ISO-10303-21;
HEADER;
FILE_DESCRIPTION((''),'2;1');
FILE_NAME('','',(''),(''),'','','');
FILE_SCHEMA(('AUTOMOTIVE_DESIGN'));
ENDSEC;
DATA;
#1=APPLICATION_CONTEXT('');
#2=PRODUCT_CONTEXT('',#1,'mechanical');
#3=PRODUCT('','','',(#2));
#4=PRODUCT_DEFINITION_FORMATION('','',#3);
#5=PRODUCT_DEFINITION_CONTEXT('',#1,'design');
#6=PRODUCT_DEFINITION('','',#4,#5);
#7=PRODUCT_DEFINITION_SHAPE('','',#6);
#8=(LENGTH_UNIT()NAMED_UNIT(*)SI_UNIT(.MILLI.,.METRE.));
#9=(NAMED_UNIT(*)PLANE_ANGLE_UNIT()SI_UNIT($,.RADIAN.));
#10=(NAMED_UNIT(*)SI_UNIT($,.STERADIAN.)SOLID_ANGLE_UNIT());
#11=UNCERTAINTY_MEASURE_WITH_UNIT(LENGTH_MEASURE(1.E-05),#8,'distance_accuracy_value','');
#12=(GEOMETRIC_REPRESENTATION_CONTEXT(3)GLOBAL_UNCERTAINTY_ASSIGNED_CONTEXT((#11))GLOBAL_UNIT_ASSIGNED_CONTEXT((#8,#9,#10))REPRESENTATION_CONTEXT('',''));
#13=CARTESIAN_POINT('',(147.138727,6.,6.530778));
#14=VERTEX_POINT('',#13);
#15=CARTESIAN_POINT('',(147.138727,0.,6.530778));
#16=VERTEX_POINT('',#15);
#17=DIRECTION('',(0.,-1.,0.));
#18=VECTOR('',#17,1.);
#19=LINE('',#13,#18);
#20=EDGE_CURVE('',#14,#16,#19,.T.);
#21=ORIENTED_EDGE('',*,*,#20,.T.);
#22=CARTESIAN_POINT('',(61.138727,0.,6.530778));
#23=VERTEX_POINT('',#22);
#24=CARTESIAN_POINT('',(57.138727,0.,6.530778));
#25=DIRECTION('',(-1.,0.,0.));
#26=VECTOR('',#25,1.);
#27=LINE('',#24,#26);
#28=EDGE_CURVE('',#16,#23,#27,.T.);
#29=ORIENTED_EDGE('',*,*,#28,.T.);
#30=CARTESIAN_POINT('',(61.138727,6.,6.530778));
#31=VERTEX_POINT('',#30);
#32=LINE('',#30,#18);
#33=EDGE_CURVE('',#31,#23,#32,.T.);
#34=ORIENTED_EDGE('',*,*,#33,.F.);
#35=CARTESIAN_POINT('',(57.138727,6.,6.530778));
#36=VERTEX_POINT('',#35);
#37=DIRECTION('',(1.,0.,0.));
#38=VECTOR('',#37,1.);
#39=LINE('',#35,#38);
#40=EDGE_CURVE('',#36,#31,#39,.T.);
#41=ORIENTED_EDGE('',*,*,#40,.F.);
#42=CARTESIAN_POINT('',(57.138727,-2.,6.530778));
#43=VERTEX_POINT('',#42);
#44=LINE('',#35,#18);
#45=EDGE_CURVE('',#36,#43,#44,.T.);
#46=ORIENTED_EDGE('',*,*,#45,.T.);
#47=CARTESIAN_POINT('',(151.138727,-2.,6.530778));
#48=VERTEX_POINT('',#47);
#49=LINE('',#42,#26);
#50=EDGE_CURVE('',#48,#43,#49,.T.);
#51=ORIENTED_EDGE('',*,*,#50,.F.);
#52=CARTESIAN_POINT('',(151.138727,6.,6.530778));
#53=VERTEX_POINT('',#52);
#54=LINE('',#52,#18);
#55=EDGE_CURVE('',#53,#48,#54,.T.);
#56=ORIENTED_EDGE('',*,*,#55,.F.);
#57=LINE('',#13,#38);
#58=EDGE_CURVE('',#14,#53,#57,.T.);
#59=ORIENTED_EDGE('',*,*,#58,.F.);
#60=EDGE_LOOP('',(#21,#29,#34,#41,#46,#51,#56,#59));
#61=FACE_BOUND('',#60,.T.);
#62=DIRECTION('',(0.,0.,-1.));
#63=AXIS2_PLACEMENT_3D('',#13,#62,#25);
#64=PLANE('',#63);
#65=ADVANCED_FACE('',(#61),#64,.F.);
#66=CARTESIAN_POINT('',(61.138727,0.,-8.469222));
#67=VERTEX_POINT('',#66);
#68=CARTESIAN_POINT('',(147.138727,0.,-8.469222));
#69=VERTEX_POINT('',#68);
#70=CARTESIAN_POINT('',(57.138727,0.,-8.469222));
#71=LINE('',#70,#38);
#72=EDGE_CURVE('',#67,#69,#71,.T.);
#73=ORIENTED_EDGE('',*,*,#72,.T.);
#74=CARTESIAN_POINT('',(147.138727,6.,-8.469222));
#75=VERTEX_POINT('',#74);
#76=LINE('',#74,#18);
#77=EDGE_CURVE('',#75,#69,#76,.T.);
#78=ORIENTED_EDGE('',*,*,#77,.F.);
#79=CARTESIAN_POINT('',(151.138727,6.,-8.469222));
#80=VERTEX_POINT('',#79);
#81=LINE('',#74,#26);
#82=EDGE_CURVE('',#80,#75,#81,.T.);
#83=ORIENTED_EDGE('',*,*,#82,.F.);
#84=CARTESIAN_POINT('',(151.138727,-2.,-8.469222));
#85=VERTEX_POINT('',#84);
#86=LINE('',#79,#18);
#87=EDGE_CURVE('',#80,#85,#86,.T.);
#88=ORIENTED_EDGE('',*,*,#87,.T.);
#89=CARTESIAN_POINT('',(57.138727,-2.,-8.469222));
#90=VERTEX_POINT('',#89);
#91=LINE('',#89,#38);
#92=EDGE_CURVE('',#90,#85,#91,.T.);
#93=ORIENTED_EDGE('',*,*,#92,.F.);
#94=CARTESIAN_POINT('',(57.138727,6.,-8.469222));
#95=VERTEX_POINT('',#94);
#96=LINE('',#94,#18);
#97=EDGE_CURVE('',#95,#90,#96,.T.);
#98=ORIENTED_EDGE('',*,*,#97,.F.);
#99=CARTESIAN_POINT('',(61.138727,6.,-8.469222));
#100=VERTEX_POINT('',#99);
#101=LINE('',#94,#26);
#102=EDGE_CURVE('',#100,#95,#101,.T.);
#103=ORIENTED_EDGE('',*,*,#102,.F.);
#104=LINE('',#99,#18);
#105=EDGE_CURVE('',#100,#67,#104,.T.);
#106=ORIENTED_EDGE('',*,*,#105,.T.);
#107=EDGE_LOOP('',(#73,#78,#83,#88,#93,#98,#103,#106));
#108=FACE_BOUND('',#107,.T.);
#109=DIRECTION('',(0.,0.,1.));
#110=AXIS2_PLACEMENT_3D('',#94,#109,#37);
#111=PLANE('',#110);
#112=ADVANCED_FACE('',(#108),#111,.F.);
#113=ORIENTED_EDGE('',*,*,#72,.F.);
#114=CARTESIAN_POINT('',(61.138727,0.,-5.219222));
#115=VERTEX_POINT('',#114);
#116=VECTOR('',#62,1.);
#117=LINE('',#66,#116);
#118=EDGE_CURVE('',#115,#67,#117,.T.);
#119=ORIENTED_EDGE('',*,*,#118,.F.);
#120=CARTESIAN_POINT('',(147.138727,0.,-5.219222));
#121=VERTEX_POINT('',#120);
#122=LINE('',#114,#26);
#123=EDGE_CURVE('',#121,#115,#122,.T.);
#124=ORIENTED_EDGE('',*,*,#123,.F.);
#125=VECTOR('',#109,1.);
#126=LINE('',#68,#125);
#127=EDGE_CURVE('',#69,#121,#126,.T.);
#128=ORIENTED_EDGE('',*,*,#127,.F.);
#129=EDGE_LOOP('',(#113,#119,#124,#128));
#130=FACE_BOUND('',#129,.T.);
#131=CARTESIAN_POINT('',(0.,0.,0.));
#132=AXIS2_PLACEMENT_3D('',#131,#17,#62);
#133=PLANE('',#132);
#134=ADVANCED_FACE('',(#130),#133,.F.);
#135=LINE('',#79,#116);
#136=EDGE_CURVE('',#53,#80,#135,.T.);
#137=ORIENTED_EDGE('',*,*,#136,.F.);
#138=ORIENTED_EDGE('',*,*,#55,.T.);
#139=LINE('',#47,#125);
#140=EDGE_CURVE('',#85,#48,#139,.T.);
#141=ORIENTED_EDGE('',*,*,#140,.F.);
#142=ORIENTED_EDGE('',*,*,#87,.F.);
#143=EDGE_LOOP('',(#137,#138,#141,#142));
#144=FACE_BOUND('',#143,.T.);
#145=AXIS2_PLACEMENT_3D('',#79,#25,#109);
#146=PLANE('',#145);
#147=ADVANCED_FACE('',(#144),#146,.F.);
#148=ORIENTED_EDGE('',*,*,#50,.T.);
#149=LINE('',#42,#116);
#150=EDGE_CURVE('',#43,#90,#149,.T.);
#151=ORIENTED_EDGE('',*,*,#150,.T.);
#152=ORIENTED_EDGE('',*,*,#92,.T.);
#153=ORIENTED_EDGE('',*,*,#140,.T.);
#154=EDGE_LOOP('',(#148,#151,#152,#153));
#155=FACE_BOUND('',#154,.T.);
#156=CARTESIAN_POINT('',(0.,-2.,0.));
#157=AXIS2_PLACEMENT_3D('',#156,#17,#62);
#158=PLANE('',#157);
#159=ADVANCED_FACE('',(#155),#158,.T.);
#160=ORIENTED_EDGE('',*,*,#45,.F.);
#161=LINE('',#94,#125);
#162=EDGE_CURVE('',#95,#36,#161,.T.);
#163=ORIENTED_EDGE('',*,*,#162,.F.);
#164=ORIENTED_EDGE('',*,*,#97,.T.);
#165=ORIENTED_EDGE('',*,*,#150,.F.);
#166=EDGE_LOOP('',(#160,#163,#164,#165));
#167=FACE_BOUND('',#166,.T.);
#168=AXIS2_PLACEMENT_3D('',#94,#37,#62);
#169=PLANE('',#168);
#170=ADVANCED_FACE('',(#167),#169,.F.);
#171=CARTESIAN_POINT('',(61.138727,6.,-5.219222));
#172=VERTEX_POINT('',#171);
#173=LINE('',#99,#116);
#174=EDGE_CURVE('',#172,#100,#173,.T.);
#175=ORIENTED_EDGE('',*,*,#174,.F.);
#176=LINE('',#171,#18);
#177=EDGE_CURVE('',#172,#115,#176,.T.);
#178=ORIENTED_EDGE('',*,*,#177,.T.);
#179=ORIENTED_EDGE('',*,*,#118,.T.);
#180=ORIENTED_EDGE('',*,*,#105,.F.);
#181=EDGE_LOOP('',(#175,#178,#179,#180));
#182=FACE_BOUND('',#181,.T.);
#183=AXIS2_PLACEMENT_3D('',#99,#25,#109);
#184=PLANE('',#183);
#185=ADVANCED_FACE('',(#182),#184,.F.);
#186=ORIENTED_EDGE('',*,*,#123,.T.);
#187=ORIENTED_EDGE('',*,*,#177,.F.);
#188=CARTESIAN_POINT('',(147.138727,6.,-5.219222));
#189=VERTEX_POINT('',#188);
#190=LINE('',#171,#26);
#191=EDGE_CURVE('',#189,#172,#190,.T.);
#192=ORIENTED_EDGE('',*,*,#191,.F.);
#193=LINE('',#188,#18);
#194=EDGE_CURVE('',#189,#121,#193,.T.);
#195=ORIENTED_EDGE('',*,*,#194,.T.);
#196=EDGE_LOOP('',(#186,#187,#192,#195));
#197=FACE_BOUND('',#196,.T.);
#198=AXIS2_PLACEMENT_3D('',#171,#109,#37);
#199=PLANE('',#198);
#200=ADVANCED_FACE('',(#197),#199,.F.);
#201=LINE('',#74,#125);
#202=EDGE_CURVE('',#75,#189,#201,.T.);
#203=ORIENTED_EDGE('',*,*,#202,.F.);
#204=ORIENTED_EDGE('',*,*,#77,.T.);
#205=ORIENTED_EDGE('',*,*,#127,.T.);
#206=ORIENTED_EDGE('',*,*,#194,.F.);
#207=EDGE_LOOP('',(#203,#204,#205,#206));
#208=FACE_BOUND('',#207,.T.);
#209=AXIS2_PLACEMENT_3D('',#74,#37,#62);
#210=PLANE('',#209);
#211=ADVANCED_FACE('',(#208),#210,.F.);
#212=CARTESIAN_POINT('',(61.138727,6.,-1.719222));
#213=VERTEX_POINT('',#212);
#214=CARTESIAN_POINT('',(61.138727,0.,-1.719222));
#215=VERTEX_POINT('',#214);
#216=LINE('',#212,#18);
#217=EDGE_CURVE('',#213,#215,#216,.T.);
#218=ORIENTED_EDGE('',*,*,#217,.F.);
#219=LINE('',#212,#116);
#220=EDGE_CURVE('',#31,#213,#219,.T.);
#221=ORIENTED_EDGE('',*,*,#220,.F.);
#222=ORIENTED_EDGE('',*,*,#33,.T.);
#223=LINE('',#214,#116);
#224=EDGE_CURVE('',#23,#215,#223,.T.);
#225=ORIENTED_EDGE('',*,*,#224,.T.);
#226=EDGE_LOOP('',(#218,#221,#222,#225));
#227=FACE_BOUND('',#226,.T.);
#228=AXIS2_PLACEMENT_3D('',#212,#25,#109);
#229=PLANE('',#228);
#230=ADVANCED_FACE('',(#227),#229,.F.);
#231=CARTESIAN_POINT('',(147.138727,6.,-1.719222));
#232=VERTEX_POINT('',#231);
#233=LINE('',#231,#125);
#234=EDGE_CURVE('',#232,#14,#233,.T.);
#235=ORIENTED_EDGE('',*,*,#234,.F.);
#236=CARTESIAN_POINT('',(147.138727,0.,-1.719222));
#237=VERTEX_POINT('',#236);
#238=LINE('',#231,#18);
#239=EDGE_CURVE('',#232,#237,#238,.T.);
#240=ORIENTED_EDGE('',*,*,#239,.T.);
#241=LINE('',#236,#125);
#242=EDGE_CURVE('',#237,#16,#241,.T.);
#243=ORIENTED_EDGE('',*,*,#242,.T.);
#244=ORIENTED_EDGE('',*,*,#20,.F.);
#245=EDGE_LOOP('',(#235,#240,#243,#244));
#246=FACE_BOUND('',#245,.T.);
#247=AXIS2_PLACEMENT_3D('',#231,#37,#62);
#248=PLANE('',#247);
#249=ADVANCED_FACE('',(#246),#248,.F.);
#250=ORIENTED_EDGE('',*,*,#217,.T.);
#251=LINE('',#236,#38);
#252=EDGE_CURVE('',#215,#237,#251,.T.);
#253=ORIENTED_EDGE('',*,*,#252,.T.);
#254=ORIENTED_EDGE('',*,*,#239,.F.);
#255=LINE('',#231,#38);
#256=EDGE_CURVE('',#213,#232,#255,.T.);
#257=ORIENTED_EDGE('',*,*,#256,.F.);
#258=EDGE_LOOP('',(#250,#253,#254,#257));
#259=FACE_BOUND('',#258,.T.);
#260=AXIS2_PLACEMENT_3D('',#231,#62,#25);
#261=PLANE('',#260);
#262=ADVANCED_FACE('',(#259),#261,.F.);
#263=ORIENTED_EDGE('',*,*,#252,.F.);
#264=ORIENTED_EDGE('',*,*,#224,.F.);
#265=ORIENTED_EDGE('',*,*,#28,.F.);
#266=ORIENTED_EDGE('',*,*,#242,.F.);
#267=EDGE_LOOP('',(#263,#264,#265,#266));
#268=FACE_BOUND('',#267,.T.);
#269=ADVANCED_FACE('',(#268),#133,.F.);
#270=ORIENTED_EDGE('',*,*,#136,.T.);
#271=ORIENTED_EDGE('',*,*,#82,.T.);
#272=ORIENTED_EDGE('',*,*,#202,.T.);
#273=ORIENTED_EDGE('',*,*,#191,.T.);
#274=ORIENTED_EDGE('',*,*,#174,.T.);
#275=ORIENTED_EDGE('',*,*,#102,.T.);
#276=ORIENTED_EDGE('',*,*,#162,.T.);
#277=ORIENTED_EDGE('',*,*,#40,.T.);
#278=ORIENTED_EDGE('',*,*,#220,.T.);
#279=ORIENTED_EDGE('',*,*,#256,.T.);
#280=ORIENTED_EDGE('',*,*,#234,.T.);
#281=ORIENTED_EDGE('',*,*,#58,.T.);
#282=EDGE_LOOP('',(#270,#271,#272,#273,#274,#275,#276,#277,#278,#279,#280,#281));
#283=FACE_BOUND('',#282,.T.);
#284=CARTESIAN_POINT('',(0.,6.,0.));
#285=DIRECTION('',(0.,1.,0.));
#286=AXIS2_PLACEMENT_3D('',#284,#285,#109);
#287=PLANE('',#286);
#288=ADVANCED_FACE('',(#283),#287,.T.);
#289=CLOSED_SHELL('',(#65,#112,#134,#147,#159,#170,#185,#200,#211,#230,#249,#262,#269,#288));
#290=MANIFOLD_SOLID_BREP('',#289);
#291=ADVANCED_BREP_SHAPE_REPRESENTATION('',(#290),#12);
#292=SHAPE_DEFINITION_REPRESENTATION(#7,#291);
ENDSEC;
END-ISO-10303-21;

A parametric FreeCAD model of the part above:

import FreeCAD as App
import Part
import Sketcher
Q = App.Units.Quantity


def add_polygon(sketch, points):
    """Adds a closed chain of lines whose ends are joined by coincident constraints."""
    first, n = sketch.GeometryCount, len(points)
    for a, b in zip(points, points[1:] + points[:1]):
        sketch.addGeometry(Part.LineSegment(App.Vector(*a, 0), App.Vector(*b, 0)), False)
    for i in range(n):
        sketch.addConstraint(Sketcher.Constraint("Coincident", first + i, 2, first + (i + 1) % n, 1))

doc = App.newDocument("Part")
params = doc.addObject("Spreadsheet::Sheet", "Params")
for row, (alias, value) in enumerate([
    ("sketch1_width", "4 mm"),
    ("sketch1_width2", "86 mm"),
    ("sketch1_height", "15 mm"),
    ("sketch1_height2", "8.25 mm"),
    ("sketch1_height3", "3.25 mm"),
    ("pad1_length", "6 mm"),
    ("sketch2_width", "94 mm"),
    ("sketch2_height", "15 mm"),
    ("pad2_length", "2 mm"),
], start=1):
    params.set(f"A{row}", alias)
    params.set(f"B{row}", "=" + value)
    params.setAlias(f"B{row}", alias)

body = doc.addObject("PartDesign::Body", "Body")

# Sketch on XZ plane
sketch1 = doc.addObject("Sketcher::SketchObject", "Sketch")
body.addObject(sketch1)
sketch1.AttachmentSupport = (doc.XZ_Plane, [""])
sketch1.MapMode = "FlatFace"
add_polygon(sketch1, [(61.1, -8.5), (57.1, -8.5), (57.1, 6.5), (61.1, 6.5), (61.1, -1.7), (147.1, -1.7), (147.1, 6.5), (151.1, 6.5), (151.1, -8.5), (147.1, -8.5), (147.1, -5.2), (61.1, -5.2)])  # lines 0-11
sketch1.addConstraint([
    Sketcher.Constraint("Horizontal", 0),
    Sketcher.Constraint("Vertical", 1),
    Sketcher.Constraint("Horizontal", 2),
    Sketcher.Constraint("Vertical", 3),
    Sketcher.Constraint("Horizontal", 4),
    Sketcher.Constraint("Vertical", 5),
    Sketcher.Constraint("Horizontal", 6),
    Sketcher.Constraint("Vertical", 7),
    Sketcher.Constraint("Horizontal", 8),
    Sketcher.Constraint("Vertical", 9),
    Sketcher.Constraint("Horizontal", 10),
    Sketcher.Constraint("Vertical", 11),
    Sketcher.Constraint("Horizontal", 2, 2, 5, 2),
    Sketcher.Constraint("Horizontal", 0, 2, 7, 2),
    Sketcher.Constraint("Vertical", 5, 2, 8, 2),
    Sketcher.Constraint("Vertical", 3, 2, 10, 2),
    Sketcher.Constraint("Equal", 2, 6),
    Sketcher.Constraint("DistanceX", 0, 2, 0, 1, Q("4 mm")),
    Sketcher.Constraint("DistanceX", 4, 1, 4, 2, Q("86 mm")),
    Sketcher.Constraint("DistanceY", 1, 1, 1, 2, Q("15 mm")),
    Sketcher.Constraint("DistanceY", 3, 2, 3, 1, Q("8.25 mm")),
    Sketcher.Constraint("DistanceY", 9, 1, 9, 2, Q("3.25 mm")),
    Sketcher.Constraint("DistanceX", -1, 1, 0, 2, Q("57.138727 mm")),
    Sketcher.Constraint("DistanceY", 0, 2, -1, 1, Q("8.469222 mm")),
])
sketch1.setExpression("Constraints[29]", "Params.sketch1_width")
sketch1.setExpression("Constraints[30]", "Params.sketch1_width2")
sketch1.setExpression("Constraints[31]", "Params.sketch1_height")
sketch1.setExpression("Constraints[32]", "Params.sketch1_height2")
sketch1.setExpression("Constraints[33]", "Params.sketch1_height3")
pad1 = doc.addObject("PartDesign::Pad", "Pad")
body.addObject(pad1)
pad1.Profile = sketch1
pad1.setExpression("Length", "Params.pad1_length")
pad1.Reversed = True

# Sketch on XZ plane
sketch2 = doc.addObject("Sketcher::SketchObject", "Sketch001")
body.addObject(sketch2)
sketch2.AttachmentSupport = (doc.XZ_Plane, [""])
sketch2.MapMode = "FlatFace"
add_polygon(sketch2, [(57, 7), (57, -8), (151, -8), (151, 7)])  # lines 0-3
sketch2.addConstraint([
    Sketcher.Constraint("Vertical", 0),
    Sketcher.Constraint("Horizontal", 1),
    Sketcher.Constraint("Vertical", 2),
    Sketcher.Constraint("Horizontal", 3),
    Sketcher.Constraint("DistanceX", 1, 1, 1, 2, Q("94 mm")),
    Sketcher.Constraint("DistanceY", 0, 2, 0, 1, Q("15 mm")),
    Sketcher.Constraint("DistanceX", -1, 1, 0, 2, Q("57.138727 mm")),
    Sketcher.Constraint("DistanceY", 0, 2, -1, 1, Q("8.469222 mm")),
])
sketch2.setExpression("Constraints[8]", "Params.sketch2_width")
sketch2.setExpression("Constraints[9]", "Params.sketch2_height")
pad2 = doc.addObject("PartDesign::Pad", "Pad001")
body.addObject(pad2)
pad2.Profile = sketch2
pad2.setExpression("Length", "Params.pad2_length")

doc.recompute()
